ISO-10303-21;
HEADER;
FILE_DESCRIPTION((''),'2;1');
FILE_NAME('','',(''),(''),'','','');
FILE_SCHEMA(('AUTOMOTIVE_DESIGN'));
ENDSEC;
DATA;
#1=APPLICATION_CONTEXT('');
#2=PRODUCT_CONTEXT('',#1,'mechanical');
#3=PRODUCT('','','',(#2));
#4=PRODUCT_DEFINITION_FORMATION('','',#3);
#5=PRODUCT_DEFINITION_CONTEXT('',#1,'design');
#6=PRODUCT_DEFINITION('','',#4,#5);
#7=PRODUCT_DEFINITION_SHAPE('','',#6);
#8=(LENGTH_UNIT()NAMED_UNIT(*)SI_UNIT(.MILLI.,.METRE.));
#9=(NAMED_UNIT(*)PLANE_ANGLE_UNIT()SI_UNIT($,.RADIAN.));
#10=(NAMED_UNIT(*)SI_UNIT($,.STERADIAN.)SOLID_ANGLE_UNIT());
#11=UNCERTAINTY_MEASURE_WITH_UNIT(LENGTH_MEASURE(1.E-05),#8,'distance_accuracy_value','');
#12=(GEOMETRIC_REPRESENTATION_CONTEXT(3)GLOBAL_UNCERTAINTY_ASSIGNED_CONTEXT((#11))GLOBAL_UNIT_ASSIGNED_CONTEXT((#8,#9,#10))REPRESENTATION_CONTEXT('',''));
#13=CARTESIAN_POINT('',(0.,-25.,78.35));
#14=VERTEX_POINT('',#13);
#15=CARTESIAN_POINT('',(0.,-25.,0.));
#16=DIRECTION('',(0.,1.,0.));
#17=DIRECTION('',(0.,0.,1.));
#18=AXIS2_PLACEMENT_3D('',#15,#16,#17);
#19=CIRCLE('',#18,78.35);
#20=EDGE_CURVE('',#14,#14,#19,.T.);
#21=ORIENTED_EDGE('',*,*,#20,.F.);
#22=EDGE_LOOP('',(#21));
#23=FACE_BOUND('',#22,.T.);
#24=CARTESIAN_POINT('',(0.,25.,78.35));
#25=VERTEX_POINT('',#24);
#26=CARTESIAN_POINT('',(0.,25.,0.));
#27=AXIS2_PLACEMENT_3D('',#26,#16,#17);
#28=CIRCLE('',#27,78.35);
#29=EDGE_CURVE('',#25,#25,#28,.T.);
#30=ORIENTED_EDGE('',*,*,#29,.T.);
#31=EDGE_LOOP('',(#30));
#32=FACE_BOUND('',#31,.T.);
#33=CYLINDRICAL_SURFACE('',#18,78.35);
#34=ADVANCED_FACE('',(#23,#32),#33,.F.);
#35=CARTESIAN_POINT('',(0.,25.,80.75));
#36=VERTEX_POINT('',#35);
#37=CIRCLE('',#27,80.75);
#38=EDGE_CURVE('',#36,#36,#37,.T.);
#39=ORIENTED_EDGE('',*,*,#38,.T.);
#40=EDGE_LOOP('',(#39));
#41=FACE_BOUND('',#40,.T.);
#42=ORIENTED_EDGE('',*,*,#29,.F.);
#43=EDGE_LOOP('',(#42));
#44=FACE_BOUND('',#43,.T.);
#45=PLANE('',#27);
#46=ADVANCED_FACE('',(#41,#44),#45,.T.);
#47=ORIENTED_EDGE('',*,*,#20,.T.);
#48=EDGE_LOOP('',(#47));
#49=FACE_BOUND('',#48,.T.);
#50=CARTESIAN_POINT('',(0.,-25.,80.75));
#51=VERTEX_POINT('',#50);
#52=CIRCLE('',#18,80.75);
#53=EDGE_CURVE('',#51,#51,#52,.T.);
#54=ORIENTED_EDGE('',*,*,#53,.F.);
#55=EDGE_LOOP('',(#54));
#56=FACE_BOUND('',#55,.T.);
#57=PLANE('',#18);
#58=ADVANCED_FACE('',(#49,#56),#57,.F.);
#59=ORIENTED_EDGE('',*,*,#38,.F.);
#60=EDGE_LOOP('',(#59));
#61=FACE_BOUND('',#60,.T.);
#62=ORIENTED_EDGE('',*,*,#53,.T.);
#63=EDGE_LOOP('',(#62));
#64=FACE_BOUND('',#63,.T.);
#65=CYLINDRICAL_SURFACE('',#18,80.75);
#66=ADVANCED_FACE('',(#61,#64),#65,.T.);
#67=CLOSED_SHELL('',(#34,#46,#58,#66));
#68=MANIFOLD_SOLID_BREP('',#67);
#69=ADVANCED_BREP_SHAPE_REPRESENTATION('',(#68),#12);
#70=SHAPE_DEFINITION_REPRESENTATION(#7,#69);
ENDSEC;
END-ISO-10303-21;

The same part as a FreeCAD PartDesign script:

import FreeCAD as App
import Part
import Sketcher

doc = App.newDocument("Part")
body = doc.addObject("PartDesign::Body", "Body")

# Sketch on XZ plane
sketch1 = body.newObject("Sketcher::SketchObject", "Sketch")
sketch1.AttachmentSupport = (doc.getObject("XZ_Plane"), [""])
sketch1.MapMode = "FlatFace"
sketch1.addGeometry([
    Part.Circle(App.Vector(0, 0, 0), App.Vector(0, 0, 1), 81),
    Part.Circle(App.Vector(0, 0, 0), App.Vector(0, 0, 1), 78),
], False)
sketch1.addConstraint([
    Sketcher.Constraint("Coincident", 0, 3, -1, 1),
    Sketcher.Constraint("Coincident", 1, 3, -1, 1),
    Sketcher.Constraint("Diameter", 0, 161.5),
    Sketcher.Constraint("Diameter", 1, 156.7),
])
pad1 = body.newObject("PartDesign::Pad", "Pad")
pad1.Profile = sketch1
pad1.Type = "TwoLengths"
pad1.Length = 25
pad1.Length2 = 25
pad1.Reversed = True

doc.recompute()
